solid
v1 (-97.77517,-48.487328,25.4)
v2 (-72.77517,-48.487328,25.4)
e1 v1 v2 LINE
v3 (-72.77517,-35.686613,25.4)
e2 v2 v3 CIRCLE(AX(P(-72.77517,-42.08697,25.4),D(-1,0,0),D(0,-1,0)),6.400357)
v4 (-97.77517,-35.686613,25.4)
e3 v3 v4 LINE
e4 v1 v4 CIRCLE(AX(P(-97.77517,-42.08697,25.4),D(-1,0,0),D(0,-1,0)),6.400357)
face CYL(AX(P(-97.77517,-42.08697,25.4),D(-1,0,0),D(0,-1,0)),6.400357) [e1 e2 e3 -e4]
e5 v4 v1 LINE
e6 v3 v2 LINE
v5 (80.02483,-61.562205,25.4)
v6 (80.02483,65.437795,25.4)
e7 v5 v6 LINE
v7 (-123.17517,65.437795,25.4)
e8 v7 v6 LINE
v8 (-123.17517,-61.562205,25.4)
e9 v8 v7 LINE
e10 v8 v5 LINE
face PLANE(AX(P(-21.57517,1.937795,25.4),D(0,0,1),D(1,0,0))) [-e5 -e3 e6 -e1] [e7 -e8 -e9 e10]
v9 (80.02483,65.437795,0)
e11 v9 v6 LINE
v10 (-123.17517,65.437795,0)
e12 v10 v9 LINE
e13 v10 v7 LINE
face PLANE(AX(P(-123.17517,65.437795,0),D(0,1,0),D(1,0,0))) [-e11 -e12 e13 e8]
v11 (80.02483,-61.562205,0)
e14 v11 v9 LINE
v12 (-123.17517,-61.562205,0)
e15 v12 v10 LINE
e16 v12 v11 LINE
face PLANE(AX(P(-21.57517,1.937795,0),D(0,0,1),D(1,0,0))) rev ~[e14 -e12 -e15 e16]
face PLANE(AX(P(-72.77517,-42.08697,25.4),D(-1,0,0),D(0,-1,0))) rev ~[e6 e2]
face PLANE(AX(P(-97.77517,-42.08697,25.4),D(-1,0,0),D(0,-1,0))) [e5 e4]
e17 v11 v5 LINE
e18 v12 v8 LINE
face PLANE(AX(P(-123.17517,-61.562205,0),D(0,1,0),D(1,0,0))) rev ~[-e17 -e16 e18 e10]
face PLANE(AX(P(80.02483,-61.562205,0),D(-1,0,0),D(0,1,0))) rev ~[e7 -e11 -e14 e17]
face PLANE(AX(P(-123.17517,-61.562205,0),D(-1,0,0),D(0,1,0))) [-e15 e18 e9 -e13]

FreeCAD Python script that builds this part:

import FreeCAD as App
import Part
import Sketcher

V = App.Vector
Q = App.Units.Quantity


def add_polygon(sketch, points):
    """Adds a closed chain of lines whose ends are joined by coincident constraints."""
    first, n = sketch.GeometryCount, len(points)
    for a, b in zip(points, points[1:] + points[:1]):
        sketch.addGeometry(Part.LineSegment(App.Vector(*a, 0), App.Vector(*b, 0)), False)
    for i in range(n):
        sketch.addConstraint(Sketcher.Constraint("Coincident", first + i, 2, first + (i + 1) % n, 1))

doc = App.newDocument("Part")
params = doc.addObject("Spreadsheet::Sheet", "Params")
for row, (alias, value) in enumerate([
    ("sketch1_width", "8 in"),
    ("sketch1_height", "5 in"),
    ("pad1_length", "1 in"),
    ("pad2_length", "25 mm"),
], start=1):
    params.set(f"A{row}", alias)
    params.set(f"B{row}", "=" + value)
    params.setAlias(f"B{row}", alias)

body = doc.addObject("PartDesign::Body", "Body")

# Sketch on XY plane
sketch1 = body.newObject("Sketcher::SketchObject", "Sketch")
sketch1.AttachmentSupport = (doc.getObject("XY_Plane"), [""])
sketch1.MapMode = "FlatFace"
add_polygon(sketch1, [(-123, 65), (-123, -62), (80, -62), (80, 65)])  # lines 0-3
sketch1.addConstraint([
    Sketcher.Constraint("Vertical", 0),
    Sketcher.Constraint("Horizontal", 1),
    Sketcher.Constraint("Vertical", 2),
    Sketcher.Constraint("Horizontal", 3),
    Sketcher.Constraint("DistanceX", 1, 1, 1, 2, Q("8 in")),
    Sketcher.Constraint("DistanceY", 0, 2, 0, 1, Q("5 in")),
    Sketcher.Constraint("DistanceX", 0, 2, -1, 1, Q("123.17517 mm")),
    Sketcher.Constraint("DistanceY", 0, 2, -1, 1, Q("61.562205 mm")),
])
sketch1.setExpression("Constraints[8]", "Params.sketch1_width")
sketch1.setExpression("Constraints[9]", "Params.sketch1_height")
pad1 = body.newObject("PartDesign::Pad", "Pad")
pad1.Profile = sketch1
pad1.setExpression("Length", "Params.pad1_length")

# Sketch on YZ plane
sketch2 = body.newObject("Sketcher::SketchObject", "Sketch001")
sketch2.AttachmentSupport = (doc.getObject("YZ_Plane"), [""])
sketch2.MapMode = "FlatFace"
sketch2.AttachmentOffset = App.Placement(V(0, 0, -97.77517), App.Rotation())
sketch2.addGeometry(Part.Circle(V(-42, 25, 0), V(0, 0, 1), 6), False)
sketch2.addConstraint([
    Sketcher.Constraint("DistanceY", -1, 1, 0, 3, Q("1 in")),
    Sketcher.Constraint("Diameter", 0, Q("12.800715 mm")),
    Sketcher.Constraint("DistanceX", 0, 3, -1, 1, Q("42.08697 mm")),
])
pad2 = body.newObject("PartDesign::Pad", "Pad001")
pad2.Profile = sketch2
pad2.setExpression("Length", "Params.pad2_length")

doc.recompute()
